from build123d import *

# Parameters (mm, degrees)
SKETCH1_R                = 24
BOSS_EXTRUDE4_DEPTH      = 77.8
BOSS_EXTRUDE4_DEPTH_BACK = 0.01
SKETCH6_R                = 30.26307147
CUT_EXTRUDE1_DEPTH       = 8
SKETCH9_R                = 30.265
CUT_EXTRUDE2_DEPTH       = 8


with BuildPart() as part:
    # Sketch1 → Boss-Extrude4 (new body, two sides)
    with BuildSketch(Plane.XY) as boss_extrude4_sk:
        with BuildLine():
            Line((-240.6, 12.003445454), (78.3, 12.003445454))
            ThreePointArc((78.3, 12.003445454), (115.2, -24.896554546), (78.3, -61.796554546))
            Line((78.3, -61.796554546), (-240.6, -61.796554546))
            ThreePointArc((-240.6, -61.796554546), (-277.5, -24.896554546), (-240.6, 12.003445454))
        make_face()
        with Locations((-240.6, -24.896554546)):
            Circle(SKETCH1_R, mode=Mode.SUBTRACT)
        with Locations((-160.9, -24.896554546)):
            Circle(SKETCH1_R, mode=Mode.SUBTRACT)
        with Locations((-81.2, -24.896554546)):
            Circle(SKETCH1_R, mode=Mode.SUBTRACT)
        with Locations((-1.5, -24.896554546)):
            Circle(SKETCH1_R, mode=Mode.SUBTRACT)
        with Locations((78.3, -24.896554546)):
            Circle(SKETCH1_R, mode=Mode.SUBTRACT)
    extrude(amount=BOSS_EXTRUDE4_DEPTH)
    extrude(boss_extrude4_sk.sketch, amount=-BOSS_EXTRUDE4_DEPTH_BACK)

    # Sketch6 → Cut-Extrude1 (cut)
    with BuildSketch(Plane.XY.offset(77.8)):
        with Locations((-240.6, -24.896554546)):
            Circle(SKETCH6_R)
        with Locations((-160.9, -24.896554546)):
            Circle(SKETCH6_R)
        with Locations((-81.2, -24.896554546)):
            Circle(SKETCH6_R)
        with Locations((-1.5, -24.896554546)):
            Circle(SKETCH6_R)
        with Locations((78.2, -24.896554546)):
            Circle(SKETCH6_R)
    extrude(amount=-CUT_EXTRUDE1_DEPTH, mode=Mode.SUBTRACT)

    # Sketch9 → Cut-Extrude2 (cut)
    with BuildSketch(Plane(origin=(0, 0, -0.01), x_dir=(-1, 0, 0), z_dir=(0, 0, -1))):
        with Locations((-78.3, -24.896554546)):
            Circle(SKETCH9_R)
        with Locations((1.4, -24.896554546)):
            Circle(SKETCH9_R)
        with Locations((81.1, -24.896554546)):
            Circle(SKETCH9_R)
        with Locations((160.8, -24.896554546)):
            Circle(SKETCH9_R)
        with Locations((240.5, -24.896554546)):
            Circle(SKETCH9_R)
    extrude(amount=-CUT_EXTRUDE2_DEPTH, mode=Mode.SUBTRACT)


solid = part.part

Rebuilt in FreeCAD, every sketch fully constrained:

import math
import FreeCAD as App
import Part
import Sketcher

doc = App.newDocument("Part")
body = doc.addObject("PartDesign::Body", "Body")

# Sketch on XY plane
sketch1 = doc.addObject("Sketcher::SketchObject", "Sketch")
body.addObject(sketch1)
sketch1.AttachmentSupport = (doc.XY_Plane, [""])
sketch1.MapMode = "FlatFace"
sketch1.addGeometry([
    Part.LineSegment(App.Vector(78.3, 12.003445, 0), App.Vector(-240.6, 12.003445, 0)),  # 0
    Part.ArcOfCircle(Part.Circle(App.Vector(-240.6, -24.896555, 0), App.Vector(0, 0, 1), 36.9), math.radians(90), math.radians(270)),  # 1
    Part.LineSegment(App.Vector(-240.6, -61.796555, 0), App.Vector(78.3, -61.796555, 0)),  # 2
    Part.ArcOfCircle(Part.Circle(App.Vector(78.3, -24.896555, 0), App.Vector(0, 0, 1), 36.9), math.radians(-90), math.radians(90)),  # 3
    Part.Circle(App.Vector(78.3, -24.896555, 0), App.Vector(0, 0, 1), 24),  # 4
    Part.Circle(App.Vector(-1.5, -24.896555, 0), App.Vector(0, 0, 1), 24),  # 5
    Part.Circle(App.Vector(-81.2, -24.896555, 0), App.Vector(0, 0, 1), 24),  # 6
    Part.Circle(App.Vector(-160.9, -24.896555, 0), App.Vector(0, 0, 1), 24),  # 7
    Part.Circle(App.Vector(-240.6, -24.896555, 0), App.Vector(0, 0, 1), 24),  # 8
], False)
sketch1.addConstraint([
    Sketcher.Constraint("Tangent", 0, 2, 1, 1),
    Sketcher.Constraint("Tangent", 1, 2, 2, 1),
    Sketcher.Constraint("Tangent", 2, 2, 3, 1),
    Sketcher.Constraint("Tangent", 3, 2, 0, 1),
    Sketcher.Constraint("Horizontal", 0),
    Sketcher.Constraint("Horizontal", 2),
    Sketcher.Constraint("Coincident", 4, 3, 3, 3),
    Sketcher.Constraint("Coincident", 8, 3, 1, 3),
    Sketcher.Constraint("Equal", 4, 5),
    Sketcher.Constraint("Equal", 5, 6),
    Sketcher.Constraint("Equal", 6, 7),
    Sketcher.Constraint("Equal", 7, 8),
    Sketcher.Constraint("Horizontal", 4, 3, 5, 3),
    Sketcher.Constraint("Horizontal", 5, 3, 6, 3),
    Sketcher.Constraint("Horizontal", 6, 3, 7, 3),
    Sketcher.Constraint("Diameter", 4, 48.0),
    Sketcher.Constraint("Radius", 1, 36.9),
    Sketcher.Constraint("DistanceX", 0, 2, 0, 1, 318.9),
    Sketcher.Constraint("DistanceX", 1, 3, -1, 1, 240.6),
    Sketcher.Constraint("DistanceX", 5, 3, -1, 1, 1.5),
    Sketcher.Constraint("DistanceX", 6, 3, -1, 1, 81.2),
    Sketcher.Constraint("DistanceX", 7, 3, -1, 1, 160.9),
    Sketcher.Constraint("DistanceY", 1, 3, -1, 1, 24.896555),
])
pad1 = doc.addObject("PartDesign::Pad", "Pad")
body.addObject(pad1)
pad1.Profile = sketch1
pad1.Type = "TwoLengths"
pad1.Length = 77.8
pad1.Length2 = 0.01

# Sketch on XY plane
sketch2 = doc.addObject("Sketcher::SketchObject", "Sketch001")
body.addObject(sketch2)
sketch2.AttachmentSupport = (doc.XY_Plane, [""])
sketch2.MapMode = "FlatFace"
sketch2.AttachmentOffset = App.Placement(App.Vector(0, 0, 77.8), App.Rotation())
sketch2.addGeometry([
    Part.Circle(App.Vector(-240.6, -24.896555, 0), App.Vector(0, 0, 1), 30.263071),  # 0
    Part.Circle(App.Vector(-160.9, -24.896555, 0), App.Vector(0, 0, 1), 30.263071),  # 1
    Part.Circle(App.Vector(-81.2, -24.896555, 0), App.Vector(0, 0, 1), 30.263071),  # 2
    Part.Circle(App.Vector(-1.5, -24.896555, 0), App.Vector(0, 0, 1), 30.263071),  # 3
    Part.Circle(App.Vector(78.2, -24.896555, 0), App.Vector(0, 0, 1), 30.263071),  # 4
], False)
sketch2.addConstraint([
    Sketcher.Constraint("Equal", 0, 1),
    Sketcher.Constraint("Equal", 1, 2),
    Sketcher.Constraint("Equal", 2, 3),
    Sketcher.Constraint("Equal", 3, 4),
    Sketcher.Constraint("Horizontal", 0, 3, 1, 3),
    Sketcher.Constraint("Horizontal", 1, 3, 2, 3),
    Sketcher.Constraint("Horizontal", 2, 3, 3, 3),
    Sketcher.Constraint("Horizontal", 3, 3, 4, 3),
    Sketcher.Constraint("DistanceX", 0, 3, -1, 1, 240.6),
    Sketcher.Constraint("DistanceX", 1, 3, -1, 1, 160.9),
    Sketcher.Constraint("DistanceX", 2, 3, -1, 1, 81.2),
    Sketcher.Constraint("DistanceX", 3, 3, -1, 1, 1.5),
    Sketcher.Constraint("DistanceX", -1, 1, 4, 3, 78.2),
    Sketcher.Constraint("Diameter", 0, 60.526143),
    Sketcher.Constraint("DistanceY", 0, 3, -1, 1, 24.896555),
])
pocket1 = doc.addObject("PartDesign::Pocket", "Pocket")
body.addObject(pocket1)
pocket1.Profile = sketch2
pocket1.Length = 8

# Sketch on XY plane
sketch3 = doc.addObject("Sketcher::SketchObject", "Sketch002")
body.addObject(sketch3)
sketch3.AttachmentSupport = (doc.XY_Plane, [""])
sketch3.MapMode = "FlatFace"
sketch3.AttachmentOffset = App.Placement(App.Vector(0, 0, -0.01), App.Rotation())
sketch3.addGeometry([
    Part.Circle(App.Vector(78.3, -24.896555, 0), App.Vector(0, 0, 1), 30.265),  # 0
    Part.Circle(App.Vector(-1.4, -24.896555, 0), App.Vector(0, 0, 1), 30.265),  # 1
    Part.Circle(App.Vector(-81.1, -24.896555, 0), App.Vector(0, 0, 1), 30.265),  # 2
    Part.Circle(App.Vector(-160.8, -24.896555, 0), App.Vector(0, 0, 1), 30.265),  # 3
    Part.Circle(App.Vector(-240.5, -24.896555, 0), App.Vector(0, 0, 1), 30.265),  # 4
], False)
sketch3.addConstraint([
    Sketcher.Constraint("Equal", 0, 1),
    Sketcher.Constraint("Equal", 1, 2),
    Sketcher.Constraint("Equal", 2, 3),
    Sketcher.Constraint("Equal", 3, 4),
    Sketcher.Constraint("Horizontal", 0, 3, 1, 3),
    Sketcher.Constraint("Horizontal", 1, 3, 2, 3),
    Sketcher.Constraint("Horizontal", 2, 3, 3, 3),
    Sketcher.Constraint("Horizontal", 3, 3, 4, 3),
    Sketcher.Constraint("Diameter", 0, 60.53),
    Sketcher.Constraint("DistanceX", -1, 1, 0, 3, 78.3),
    Sketcher.Constraint("DistanceX", 1, 3, -1, 1, 1.4),
    Sketcher.Constraint("DistanceX", 2, 3, -1, 1, 81.1),
    Sketcher.Constraint("DistanceX", 3, 3, -1, 1, 160.8),
    Sketcher.Constraint("DistanceX", 4, 3, -1, 1, 240.5),
    Sketcher.Constraint("DistanceY", 0, 3, -1, 1, 24.896555),
])
pocket2 = doc.addObject("PartDesign::Pocket", "Pocket001")
body.addObject(pocket2)
pocket2.Profile = sketch3
pocket2.Length = 8
pocket2.Reversed = True

doc.recompute()
